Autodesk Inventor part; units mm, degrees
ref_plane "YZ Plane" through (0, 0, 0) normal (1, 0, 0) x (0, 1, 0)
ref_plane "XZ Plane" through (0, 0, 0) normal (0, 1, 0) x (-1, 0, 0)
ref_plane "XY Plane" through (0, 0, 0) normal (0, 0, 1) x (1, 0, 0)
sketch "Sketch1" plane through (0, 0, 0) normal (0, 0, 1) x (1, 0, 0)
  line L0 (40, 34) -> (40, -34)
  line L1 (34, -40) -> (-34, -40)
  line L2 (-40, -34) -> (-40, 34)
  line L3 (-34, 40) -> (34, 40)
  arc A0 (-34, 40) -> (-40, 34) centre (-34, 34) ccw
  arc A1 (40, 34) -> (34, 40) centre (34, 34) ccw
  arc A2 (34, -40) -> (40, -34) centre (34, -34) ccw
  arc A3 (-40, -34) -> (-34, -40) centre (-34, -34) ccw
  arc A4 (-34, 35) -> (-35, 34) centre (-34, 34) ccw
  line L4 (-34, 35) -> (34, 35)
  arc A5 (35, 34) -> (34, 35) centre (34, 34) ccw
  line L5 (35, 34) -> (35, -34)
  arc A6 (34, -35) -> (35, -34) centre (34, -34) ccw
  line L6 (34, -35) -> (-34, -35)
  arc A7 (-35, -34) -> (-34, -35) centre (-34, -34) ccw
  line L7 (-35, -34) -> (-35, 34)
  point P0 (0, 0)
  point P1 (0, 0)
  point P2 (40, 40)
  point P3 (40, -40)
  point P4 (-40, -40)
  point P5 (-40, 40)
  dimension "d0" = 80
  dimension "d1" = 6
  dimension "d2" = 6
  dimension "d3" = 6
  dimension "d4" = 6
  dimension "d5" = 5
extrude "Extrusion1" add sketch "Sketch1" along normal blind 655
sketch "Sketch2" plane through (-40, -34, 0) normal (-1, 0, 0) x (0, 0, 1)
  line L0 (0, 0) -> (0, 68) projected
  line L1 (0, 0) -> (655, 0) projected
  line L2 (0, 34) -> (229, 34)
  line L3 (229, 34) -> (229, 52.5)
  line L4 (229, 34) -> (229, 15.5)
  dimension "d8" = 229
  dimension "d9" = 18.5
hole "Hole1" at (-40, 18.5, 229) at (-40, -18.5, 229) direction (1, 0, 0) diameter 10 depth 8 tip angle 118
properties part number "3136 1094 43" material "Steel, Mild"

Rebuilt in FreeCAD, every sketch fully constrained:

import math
import FreeCAD as App
import Part
import Sketcher
from FreeCAD import Vector

doc = App.newDocument("Part")
body = doc.addObject("PartDesign::Body", "Body")

# Sketch on XY plane
sketch1 = body.newObject("Sketcher::SketchObject", "Sketch")
sketch1.AttachmentSupport = (doc.getObject("XY_Plane"), [""])
sketch1.MapMode = "FlatFace"
sketch1.addGeometry([
    Part.LineSegment(Vector(40, -34, 0), Vector(40, 34, 0)),  # 0
    Part.ArcOfCircle(Part.Circle(Vector(34, 34, 0), Vector(0, 0, 1), 6), math.radians(0), math.radians(90)),  # 1
    Part.LineSegment(Vector(34, 40, 0), Vector(-34, 40, 0)),  # 2
    Part.ArcOfCircle(Part.Circle(Vector(-34, 34, 0), Vector(0, 0, 1), 6), math.radians(90), math.radians(180)),  # 3
    Part.LineSegment(Vector(-40, 34, 0), Vector(-40, -34, 0)),  # 4
    Part.ArcOfCircle(Part.Circle(Vector(-34, -34, 0), Vector(0, 0, 1), 6), math.radians(180), math.radians(270)),  # 5
    Part.LineSegment(Vector(-34, -40, 0), Vector(34, -40, 0)),  # 6
    Part.ArcOfCircle(Part.Circle(Vector(34, -34, 0), Vector(0, 0, 1), 6), math.radians(-90), math.radians(0)),  # 7
    Part.ArcOfCircle(Part.Circle(Vector(-34, 34, 0), Vector(0, 0, 1), 1), math.radians(90), math.radians(180)),  # 8
    Part.LineSegment(Vector(-34, 35, 0), Vector(34, 35, 0)),  # 9
    Part.ArcOfCircle(Part.Circle(Vector(34, 34, 0), Vector(0, 0, 1), 1), math.radians(0), math.radians(90)),  # 10
    Part.LineSegment(Vector(35, 34, 0), Vector(35, -34, 0)),  # 11
    Part.ArcOfCircle(Part.Circle(Vector(34, -34, 0), Vector(0, 0, 1), 1), math.radians(-90), math.radians(0)),  # 12
    Part.LineSegment(Vector(34, -35, 0), Vector(-34, -35, 0)),  # 13
    Part.ArcOfCircle(Part.Circle(Vector(-34, -34, 0), Vector(0, 0, 1), 1), math.radians(180), math.radians(270)),  # 14
    Part.LineSegment(Vector(-35, -34, 0), Vector(-35, 34, 0)),  # 15
], False)
sketch1.addConstraint([
    Sketcher.Constraint("Tangent", 0, 2, 1, 1),
    Sketcher.Constraint("Tangent", 1, 2, 2, 1),
    Sketcher.Constraint("Tangent", 2, 2, 3, 1),
    Sketcher.Constraint("Tangent", 3, 2, 4, 1),
    Sketcher.Constraint("Tangent", 4, 2, 5, 1),
    Sketcher.Constraint("Tangent", 5, 2, 6, 1),
    Sketcher.Constraint("Tangent", 6, 2, 7, 1),
    Sketcher.Constraint("Tangent", 7, 2, 0, 1),
    Sketcher.Constraint("Tangent", 8, 1, 9, 1),
    Sketcher.Constraint("Tangent", 9, 2, 10, 2),
    Sketcher.Constraint("Tangent", 10, 1, 11, 1),
    Sketcher.Constraint("Tangent", 11, 2, 12, 2),
    Sketcher.Constraint("Tangent", 12, 1, 13, 1),
    Sketcher.Constraint("Tangent", 13, 2, 14, 2),
    Sketcher.Constraint("Tangent", 14, 1, 15, 1),
    Sketcher.Constraint("Tangent", 15, 2, 8, 2),
    Sketcher.Constraint("Vertical", 0),
    Sketcher.Constraint("Horizontal", 2),
    Sketcher.Constraint("Vertical", 4),
    Sketcher.Constraint("Horizontal", 6),
    Sketcher.Constraint("Horizontal", 9),
    Sketcher.Constraint("Vertical", 11),
    Sketcher.Constraint("Horizontal", 13),
    Sketcher.Constraint("Vertical", 15),
    Sketcher.Constraint("Coincident", 8, 3, 3, 3),
    Sketcher.Constraint("Coincident", 10, 3, 1, 3),
    Sketcher.Constraint("Coincident", 12, 3, 7, 3),
    Sketcher.Constraint("Equal", 1, 3),
    Sketcher.Constraint("Equal", 3, 5),
    Sketcher.Constraint("Equal", 5, 7),
    Sketcher.Constraint("Equal", 12, 14),
    Sketcher.Constraint("Symmetric", 1, 3, 5, 3, -1, 1),
    Sketcher.Constraint("Equal", 13, 0),
    Sketcher.Constraint("Radius", 1, 6.0),
    Sketcher.Constraint("Radius", 8, 1.0),
    Sketcher.Constraint("DistanceX", 2, 2, 2, 1, 68.0),
])
pad1 = body.newObject("PartDesign::Pad", "Pad")
pad1.Profile = sketch1
pad1.Length = 655

# Sketch on YZ plane
sketch2 = body.newObject("Sketcher::SketchObject", "Sketch001")
sketch2.AttachmentSupport = (doc.getObject("YZ_Plane"), [""])
sketch2.MapMode = "FlatFace"
sketch2.AttachmentOffset = App.Placement(Vector(0, 0, -40), App.Rotation())
sketch2.addGeometry([
    Part.Circle(Vector(18.5, 229, 0), Vector(0, 0, 1), 5),
    Part.Circle(Vector(-18.5, 229, 0), Vector(0, 0, 1), 5),
], False)
sketch2.addConstraint([
    Sketcher.Constraint("Equal", 0, 1),
    Sketcher.Constraint("Symmetric", 0, 3, 1, 3, -2),
    Sketcher.Constraint("Diameter", 0, 10.0),
    Sketcher.Constraint("DistanceY", -1, 1, 0, 3, 229.0),
    Sketcher.Constraint("DistanceX", 1, 3, 0, 3, 37.0),
])
doc.recompute()
hole = body.newObject("PartDesign::Hole", "Hole")
hole.Profile = sketch2
hole.ThreadType = "None"
hole.Diameter = 10
hole.DepthType = "Dimension"
hole.Depth = 8
hole.DrillPoint = "Angled"
hole.DrillPointAngle = 118
hole.Reversed = True

doc.recompute()
